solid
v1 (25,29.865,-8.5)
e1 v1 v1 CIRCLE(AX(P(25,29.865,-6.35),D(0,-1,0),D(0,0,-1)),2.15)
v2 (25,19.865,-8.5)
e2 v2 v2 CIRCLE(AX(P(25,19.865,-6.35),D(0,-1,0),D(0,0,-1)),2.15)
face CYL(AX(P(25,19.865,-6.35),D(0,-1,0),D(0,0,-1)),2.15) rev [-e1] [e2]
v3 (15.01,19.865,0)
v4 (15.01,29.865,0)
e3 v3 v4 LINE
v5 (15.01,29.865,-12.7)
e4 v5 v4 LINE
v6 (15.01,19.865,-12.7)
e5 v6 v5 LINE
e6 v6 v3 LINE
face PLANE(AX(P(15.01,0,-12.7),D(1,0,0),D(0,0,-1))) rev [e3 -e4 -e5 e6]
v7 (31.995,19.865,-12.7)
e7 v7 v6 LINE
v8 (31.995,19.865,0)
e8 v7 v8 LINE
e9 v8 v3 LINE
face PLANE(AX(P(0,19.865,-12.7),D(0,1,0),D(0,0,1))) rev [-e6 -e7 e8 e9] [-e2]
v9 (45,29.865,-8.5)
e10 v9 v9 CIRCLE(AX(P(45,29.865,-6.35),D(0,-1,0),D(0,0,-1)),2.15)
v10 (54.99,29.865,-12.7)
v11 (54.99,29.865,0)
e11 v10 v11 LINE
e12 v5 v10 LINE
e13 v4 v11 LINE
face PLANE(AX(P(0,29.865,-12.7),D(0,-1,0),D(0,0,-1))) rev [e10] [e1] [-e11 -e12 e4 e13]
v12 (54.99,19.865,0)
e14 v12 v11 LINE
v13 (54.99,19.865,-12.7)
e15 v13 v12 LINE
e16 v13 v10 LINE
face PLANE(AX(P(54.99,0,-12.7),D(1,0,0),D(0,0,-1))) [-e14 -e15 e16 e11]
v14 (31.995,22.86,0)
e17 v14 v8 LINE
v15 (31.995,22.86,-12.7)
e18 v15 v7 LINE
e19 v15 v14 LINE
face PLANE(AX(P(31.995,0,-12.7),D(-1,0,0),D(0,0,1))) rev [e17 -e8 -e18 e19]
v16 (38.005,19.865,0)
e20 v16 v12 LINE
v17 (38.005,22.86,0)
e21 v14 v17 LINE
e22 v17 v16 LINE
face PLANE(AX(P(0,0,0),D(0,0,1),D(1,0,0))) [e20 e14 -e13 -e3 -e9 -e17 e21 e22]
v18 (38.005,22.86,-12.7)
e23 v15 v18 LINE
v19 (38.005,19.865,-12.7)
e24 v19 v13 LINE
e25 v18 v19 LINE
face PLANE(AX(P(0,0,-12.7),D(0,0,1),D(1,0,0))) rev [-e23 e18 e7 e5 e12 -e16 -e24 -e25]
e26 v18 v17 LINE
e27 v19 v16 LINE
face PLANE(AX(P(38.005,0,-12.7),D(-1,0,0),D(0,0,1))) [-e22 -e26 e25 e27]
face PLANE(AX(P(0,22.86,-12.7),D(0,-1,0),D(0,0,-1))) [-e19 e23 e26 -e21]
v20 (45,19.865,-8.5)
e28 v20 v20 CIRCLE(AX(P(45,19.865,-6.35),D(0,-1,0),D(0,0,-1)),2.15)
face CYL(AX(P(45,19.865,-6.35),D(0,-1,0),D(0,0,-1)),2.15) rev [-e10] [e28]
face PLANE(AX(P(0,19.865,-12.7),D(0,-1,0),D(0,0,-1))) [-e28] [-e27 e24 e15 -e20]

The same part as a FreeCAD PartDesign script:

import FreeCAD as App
import Part
import Sketcher
from FreeCAD import Vector

doc = App.newDocument("Part")
body = doc.addObject("PartDesign::Body", "Body")

# Sketch on XY plane
sketch1 = body.newObject("Sketcher::SketchObject", "Sketch")
sketch1.AttachmentSupport = (doc.getObject("XY_Plane"), [""])
sketch1.MapMode = "FlatFace"
sketch1.addGeometry(Part.LineSegment(Vector(54.99, 29.865, 0), Vector(15.01, 29.865, 0)), False)
sketch1.addGeometry(Part.LineSegment(Vector(15.01, 29.865, 0), Vector(15.01, 19.865, 0)), False)
sketch1.addGeometry(Part.LineSegment(Vector(15.01, 19.865, 0), Vector(31.995, 19.865, 0)), False)
sketch1.addGeometry(Part.LineSegment(Vector(31.995, 19.865, 0), Vector(31.995, 22.86, 0)), False)
sketch1.addGeometry(Part.LineSegment(Vector(31.995, 22.86, 0), Vector(38.005, 22.86, 0)), False)
sketch1.addGeometry(Part.LineSegment(Vector(38.005, 22.86, 0), Vector(38.005, 19.865, 0)), False)
sketch1.addGeometry(Part.LineSegment(Vector(38.005, 19.865, 0), Vector(54.99, 19.865, 0)), False)
sketch1.addGeometry(Part.LineSegment(Vector(54.99, 19.865, 0), Vector(54.99, 29.865, 0)), False)
sketch1.addConstraint(Sketcher.Constraint("Coincident", 0, 2, 1, 1))
sketch1.addConstraint(Sketcher.Constraint("Coincident", 1, 2, 2, 1))
sketch1.addConstraint(Sketcher.Constraint("Coincident", 2, 2, 3, 1))
sketch1.addConstraint(Sketcher.Constraint("Coincident", 3, 2, 4, 1))
sketch1.addConstraint(Sketcher.Constraint("Coincident", 4, 2, 5, 1))
sketch1.addConstraint(Sketcher.Constraint("Coincident", 5, 2, 6, 1))
sketch1.addConstraint(Sketcher.Constraint("Coincident", 6, 2, 7, 1))
sketch1.addConstraint(Sketcher.Constraint("Coincident", 7, 2, 0, 1))
sketch1.addConstraint(Sketcher.Constraint("Horizontal", 0))
sketch1.addConstraint(Sketcher.Constraint("Vertical", 1))
sketch1.addConstraint(Sketcher.Constraint("Horizontal", 2))
sketch1.addConstraint(Sketcher.Constraint("Vertical", 3))
sketch1.addConstraint(Sketcher.Constraint("Horizontal", 4))
sketch1.addConstraint(Sketcher.Constraint("Vertical", 5))
sketch1.addConstraint(Sketcher.Constraint("Horizontal", 6))
sketch1.addConstraint(Sketcher.Constraint("Vertical", 7))
sketch1.addConstraint(Sketcher.Constraint("Horizontal", 2, 2, 5, 2))
sketch1.addConstraint(Sketcher.Constraint("Equal", 2, 6))
sketch1.addConstraint(Sketcher.Constraint("DistanceY", 1, 2, 1, 1, 10.0))
sketch1.addConstraint(Sketcher.Constraint("DistanceX", 0, 2, 0, 1, 39.98))
sketch1.addConstraint(Sketcher.Constraint("DistanceX", 4, 1, 4, 2, 6.01))
sketch1.addConstraint(Sketcher.Constraint("DistanceY", 3, 1, 3, 2, 2.995))
sketch1.addConstraint(Sketcher.Constraint("DistanceX", -1, 1, 0, 2, 15.01))
sketch1.addConstraint(Sketcher.Constraint("DistanceY", -1, 1, 3, 2, 22.86))
pad1 = body.newObject("PartDesign::Pad", "Pad")
pad1.Profile = sketch1
pad1.Length = 12.7
pad1.Reversed = True

# Sketch on XZ plane
sketch2 = body.newObject("Sketcher::SketchObject", "Sketch001")
sketch2.AttachmentSupport = (doc.getObject("XZ_Plane"), [""])
sketch2.MapMode = "FlatFace"
sketch2.AttachmentOffset = App.Placement(Vector(0, 0, -19.865), App.Rotation())
sketch2.addGeometry(Part.Circle(Vector(25, -6.35, 0), Vector(0, 0, 1), 2.15), False)
sketch2.addGeometry(Part.Circle(Vector(45, -6.35, 0), Vector(0, 0, 1), 2.15), False)
sketch2.addConstraint(Sketcher.Constraint("Equal", 0, 1))
sketch2.addConstraint(Sketcher.Constraint("Horizontal", 0, 3, 1, 3))
sketch2.addConstraint(Sketcher.Constraint("Diameter", 0, 4.3))
sketch2.addConstraint(Sketcher.Constraint("DistanceX", -1, 1, 0, 3, 25.0))
sketch2.addConstraint(Sketcher.Constraint("DistanceX", -1, 1, 1, 3, 45.0))
sketch2.addConstraint(Sketcher.Constraint("DistanceY", 0, 3, -1, 1, 6.35))
doc.recompute()
hole = body.newObject("PartDesign::Hole", "Hole")
hole.Profile = sketch2
hole.ThreadType = "None"
hole.Diameter = 4.3
hole.DepthType = "ThroughAll"

doc.recompute()
